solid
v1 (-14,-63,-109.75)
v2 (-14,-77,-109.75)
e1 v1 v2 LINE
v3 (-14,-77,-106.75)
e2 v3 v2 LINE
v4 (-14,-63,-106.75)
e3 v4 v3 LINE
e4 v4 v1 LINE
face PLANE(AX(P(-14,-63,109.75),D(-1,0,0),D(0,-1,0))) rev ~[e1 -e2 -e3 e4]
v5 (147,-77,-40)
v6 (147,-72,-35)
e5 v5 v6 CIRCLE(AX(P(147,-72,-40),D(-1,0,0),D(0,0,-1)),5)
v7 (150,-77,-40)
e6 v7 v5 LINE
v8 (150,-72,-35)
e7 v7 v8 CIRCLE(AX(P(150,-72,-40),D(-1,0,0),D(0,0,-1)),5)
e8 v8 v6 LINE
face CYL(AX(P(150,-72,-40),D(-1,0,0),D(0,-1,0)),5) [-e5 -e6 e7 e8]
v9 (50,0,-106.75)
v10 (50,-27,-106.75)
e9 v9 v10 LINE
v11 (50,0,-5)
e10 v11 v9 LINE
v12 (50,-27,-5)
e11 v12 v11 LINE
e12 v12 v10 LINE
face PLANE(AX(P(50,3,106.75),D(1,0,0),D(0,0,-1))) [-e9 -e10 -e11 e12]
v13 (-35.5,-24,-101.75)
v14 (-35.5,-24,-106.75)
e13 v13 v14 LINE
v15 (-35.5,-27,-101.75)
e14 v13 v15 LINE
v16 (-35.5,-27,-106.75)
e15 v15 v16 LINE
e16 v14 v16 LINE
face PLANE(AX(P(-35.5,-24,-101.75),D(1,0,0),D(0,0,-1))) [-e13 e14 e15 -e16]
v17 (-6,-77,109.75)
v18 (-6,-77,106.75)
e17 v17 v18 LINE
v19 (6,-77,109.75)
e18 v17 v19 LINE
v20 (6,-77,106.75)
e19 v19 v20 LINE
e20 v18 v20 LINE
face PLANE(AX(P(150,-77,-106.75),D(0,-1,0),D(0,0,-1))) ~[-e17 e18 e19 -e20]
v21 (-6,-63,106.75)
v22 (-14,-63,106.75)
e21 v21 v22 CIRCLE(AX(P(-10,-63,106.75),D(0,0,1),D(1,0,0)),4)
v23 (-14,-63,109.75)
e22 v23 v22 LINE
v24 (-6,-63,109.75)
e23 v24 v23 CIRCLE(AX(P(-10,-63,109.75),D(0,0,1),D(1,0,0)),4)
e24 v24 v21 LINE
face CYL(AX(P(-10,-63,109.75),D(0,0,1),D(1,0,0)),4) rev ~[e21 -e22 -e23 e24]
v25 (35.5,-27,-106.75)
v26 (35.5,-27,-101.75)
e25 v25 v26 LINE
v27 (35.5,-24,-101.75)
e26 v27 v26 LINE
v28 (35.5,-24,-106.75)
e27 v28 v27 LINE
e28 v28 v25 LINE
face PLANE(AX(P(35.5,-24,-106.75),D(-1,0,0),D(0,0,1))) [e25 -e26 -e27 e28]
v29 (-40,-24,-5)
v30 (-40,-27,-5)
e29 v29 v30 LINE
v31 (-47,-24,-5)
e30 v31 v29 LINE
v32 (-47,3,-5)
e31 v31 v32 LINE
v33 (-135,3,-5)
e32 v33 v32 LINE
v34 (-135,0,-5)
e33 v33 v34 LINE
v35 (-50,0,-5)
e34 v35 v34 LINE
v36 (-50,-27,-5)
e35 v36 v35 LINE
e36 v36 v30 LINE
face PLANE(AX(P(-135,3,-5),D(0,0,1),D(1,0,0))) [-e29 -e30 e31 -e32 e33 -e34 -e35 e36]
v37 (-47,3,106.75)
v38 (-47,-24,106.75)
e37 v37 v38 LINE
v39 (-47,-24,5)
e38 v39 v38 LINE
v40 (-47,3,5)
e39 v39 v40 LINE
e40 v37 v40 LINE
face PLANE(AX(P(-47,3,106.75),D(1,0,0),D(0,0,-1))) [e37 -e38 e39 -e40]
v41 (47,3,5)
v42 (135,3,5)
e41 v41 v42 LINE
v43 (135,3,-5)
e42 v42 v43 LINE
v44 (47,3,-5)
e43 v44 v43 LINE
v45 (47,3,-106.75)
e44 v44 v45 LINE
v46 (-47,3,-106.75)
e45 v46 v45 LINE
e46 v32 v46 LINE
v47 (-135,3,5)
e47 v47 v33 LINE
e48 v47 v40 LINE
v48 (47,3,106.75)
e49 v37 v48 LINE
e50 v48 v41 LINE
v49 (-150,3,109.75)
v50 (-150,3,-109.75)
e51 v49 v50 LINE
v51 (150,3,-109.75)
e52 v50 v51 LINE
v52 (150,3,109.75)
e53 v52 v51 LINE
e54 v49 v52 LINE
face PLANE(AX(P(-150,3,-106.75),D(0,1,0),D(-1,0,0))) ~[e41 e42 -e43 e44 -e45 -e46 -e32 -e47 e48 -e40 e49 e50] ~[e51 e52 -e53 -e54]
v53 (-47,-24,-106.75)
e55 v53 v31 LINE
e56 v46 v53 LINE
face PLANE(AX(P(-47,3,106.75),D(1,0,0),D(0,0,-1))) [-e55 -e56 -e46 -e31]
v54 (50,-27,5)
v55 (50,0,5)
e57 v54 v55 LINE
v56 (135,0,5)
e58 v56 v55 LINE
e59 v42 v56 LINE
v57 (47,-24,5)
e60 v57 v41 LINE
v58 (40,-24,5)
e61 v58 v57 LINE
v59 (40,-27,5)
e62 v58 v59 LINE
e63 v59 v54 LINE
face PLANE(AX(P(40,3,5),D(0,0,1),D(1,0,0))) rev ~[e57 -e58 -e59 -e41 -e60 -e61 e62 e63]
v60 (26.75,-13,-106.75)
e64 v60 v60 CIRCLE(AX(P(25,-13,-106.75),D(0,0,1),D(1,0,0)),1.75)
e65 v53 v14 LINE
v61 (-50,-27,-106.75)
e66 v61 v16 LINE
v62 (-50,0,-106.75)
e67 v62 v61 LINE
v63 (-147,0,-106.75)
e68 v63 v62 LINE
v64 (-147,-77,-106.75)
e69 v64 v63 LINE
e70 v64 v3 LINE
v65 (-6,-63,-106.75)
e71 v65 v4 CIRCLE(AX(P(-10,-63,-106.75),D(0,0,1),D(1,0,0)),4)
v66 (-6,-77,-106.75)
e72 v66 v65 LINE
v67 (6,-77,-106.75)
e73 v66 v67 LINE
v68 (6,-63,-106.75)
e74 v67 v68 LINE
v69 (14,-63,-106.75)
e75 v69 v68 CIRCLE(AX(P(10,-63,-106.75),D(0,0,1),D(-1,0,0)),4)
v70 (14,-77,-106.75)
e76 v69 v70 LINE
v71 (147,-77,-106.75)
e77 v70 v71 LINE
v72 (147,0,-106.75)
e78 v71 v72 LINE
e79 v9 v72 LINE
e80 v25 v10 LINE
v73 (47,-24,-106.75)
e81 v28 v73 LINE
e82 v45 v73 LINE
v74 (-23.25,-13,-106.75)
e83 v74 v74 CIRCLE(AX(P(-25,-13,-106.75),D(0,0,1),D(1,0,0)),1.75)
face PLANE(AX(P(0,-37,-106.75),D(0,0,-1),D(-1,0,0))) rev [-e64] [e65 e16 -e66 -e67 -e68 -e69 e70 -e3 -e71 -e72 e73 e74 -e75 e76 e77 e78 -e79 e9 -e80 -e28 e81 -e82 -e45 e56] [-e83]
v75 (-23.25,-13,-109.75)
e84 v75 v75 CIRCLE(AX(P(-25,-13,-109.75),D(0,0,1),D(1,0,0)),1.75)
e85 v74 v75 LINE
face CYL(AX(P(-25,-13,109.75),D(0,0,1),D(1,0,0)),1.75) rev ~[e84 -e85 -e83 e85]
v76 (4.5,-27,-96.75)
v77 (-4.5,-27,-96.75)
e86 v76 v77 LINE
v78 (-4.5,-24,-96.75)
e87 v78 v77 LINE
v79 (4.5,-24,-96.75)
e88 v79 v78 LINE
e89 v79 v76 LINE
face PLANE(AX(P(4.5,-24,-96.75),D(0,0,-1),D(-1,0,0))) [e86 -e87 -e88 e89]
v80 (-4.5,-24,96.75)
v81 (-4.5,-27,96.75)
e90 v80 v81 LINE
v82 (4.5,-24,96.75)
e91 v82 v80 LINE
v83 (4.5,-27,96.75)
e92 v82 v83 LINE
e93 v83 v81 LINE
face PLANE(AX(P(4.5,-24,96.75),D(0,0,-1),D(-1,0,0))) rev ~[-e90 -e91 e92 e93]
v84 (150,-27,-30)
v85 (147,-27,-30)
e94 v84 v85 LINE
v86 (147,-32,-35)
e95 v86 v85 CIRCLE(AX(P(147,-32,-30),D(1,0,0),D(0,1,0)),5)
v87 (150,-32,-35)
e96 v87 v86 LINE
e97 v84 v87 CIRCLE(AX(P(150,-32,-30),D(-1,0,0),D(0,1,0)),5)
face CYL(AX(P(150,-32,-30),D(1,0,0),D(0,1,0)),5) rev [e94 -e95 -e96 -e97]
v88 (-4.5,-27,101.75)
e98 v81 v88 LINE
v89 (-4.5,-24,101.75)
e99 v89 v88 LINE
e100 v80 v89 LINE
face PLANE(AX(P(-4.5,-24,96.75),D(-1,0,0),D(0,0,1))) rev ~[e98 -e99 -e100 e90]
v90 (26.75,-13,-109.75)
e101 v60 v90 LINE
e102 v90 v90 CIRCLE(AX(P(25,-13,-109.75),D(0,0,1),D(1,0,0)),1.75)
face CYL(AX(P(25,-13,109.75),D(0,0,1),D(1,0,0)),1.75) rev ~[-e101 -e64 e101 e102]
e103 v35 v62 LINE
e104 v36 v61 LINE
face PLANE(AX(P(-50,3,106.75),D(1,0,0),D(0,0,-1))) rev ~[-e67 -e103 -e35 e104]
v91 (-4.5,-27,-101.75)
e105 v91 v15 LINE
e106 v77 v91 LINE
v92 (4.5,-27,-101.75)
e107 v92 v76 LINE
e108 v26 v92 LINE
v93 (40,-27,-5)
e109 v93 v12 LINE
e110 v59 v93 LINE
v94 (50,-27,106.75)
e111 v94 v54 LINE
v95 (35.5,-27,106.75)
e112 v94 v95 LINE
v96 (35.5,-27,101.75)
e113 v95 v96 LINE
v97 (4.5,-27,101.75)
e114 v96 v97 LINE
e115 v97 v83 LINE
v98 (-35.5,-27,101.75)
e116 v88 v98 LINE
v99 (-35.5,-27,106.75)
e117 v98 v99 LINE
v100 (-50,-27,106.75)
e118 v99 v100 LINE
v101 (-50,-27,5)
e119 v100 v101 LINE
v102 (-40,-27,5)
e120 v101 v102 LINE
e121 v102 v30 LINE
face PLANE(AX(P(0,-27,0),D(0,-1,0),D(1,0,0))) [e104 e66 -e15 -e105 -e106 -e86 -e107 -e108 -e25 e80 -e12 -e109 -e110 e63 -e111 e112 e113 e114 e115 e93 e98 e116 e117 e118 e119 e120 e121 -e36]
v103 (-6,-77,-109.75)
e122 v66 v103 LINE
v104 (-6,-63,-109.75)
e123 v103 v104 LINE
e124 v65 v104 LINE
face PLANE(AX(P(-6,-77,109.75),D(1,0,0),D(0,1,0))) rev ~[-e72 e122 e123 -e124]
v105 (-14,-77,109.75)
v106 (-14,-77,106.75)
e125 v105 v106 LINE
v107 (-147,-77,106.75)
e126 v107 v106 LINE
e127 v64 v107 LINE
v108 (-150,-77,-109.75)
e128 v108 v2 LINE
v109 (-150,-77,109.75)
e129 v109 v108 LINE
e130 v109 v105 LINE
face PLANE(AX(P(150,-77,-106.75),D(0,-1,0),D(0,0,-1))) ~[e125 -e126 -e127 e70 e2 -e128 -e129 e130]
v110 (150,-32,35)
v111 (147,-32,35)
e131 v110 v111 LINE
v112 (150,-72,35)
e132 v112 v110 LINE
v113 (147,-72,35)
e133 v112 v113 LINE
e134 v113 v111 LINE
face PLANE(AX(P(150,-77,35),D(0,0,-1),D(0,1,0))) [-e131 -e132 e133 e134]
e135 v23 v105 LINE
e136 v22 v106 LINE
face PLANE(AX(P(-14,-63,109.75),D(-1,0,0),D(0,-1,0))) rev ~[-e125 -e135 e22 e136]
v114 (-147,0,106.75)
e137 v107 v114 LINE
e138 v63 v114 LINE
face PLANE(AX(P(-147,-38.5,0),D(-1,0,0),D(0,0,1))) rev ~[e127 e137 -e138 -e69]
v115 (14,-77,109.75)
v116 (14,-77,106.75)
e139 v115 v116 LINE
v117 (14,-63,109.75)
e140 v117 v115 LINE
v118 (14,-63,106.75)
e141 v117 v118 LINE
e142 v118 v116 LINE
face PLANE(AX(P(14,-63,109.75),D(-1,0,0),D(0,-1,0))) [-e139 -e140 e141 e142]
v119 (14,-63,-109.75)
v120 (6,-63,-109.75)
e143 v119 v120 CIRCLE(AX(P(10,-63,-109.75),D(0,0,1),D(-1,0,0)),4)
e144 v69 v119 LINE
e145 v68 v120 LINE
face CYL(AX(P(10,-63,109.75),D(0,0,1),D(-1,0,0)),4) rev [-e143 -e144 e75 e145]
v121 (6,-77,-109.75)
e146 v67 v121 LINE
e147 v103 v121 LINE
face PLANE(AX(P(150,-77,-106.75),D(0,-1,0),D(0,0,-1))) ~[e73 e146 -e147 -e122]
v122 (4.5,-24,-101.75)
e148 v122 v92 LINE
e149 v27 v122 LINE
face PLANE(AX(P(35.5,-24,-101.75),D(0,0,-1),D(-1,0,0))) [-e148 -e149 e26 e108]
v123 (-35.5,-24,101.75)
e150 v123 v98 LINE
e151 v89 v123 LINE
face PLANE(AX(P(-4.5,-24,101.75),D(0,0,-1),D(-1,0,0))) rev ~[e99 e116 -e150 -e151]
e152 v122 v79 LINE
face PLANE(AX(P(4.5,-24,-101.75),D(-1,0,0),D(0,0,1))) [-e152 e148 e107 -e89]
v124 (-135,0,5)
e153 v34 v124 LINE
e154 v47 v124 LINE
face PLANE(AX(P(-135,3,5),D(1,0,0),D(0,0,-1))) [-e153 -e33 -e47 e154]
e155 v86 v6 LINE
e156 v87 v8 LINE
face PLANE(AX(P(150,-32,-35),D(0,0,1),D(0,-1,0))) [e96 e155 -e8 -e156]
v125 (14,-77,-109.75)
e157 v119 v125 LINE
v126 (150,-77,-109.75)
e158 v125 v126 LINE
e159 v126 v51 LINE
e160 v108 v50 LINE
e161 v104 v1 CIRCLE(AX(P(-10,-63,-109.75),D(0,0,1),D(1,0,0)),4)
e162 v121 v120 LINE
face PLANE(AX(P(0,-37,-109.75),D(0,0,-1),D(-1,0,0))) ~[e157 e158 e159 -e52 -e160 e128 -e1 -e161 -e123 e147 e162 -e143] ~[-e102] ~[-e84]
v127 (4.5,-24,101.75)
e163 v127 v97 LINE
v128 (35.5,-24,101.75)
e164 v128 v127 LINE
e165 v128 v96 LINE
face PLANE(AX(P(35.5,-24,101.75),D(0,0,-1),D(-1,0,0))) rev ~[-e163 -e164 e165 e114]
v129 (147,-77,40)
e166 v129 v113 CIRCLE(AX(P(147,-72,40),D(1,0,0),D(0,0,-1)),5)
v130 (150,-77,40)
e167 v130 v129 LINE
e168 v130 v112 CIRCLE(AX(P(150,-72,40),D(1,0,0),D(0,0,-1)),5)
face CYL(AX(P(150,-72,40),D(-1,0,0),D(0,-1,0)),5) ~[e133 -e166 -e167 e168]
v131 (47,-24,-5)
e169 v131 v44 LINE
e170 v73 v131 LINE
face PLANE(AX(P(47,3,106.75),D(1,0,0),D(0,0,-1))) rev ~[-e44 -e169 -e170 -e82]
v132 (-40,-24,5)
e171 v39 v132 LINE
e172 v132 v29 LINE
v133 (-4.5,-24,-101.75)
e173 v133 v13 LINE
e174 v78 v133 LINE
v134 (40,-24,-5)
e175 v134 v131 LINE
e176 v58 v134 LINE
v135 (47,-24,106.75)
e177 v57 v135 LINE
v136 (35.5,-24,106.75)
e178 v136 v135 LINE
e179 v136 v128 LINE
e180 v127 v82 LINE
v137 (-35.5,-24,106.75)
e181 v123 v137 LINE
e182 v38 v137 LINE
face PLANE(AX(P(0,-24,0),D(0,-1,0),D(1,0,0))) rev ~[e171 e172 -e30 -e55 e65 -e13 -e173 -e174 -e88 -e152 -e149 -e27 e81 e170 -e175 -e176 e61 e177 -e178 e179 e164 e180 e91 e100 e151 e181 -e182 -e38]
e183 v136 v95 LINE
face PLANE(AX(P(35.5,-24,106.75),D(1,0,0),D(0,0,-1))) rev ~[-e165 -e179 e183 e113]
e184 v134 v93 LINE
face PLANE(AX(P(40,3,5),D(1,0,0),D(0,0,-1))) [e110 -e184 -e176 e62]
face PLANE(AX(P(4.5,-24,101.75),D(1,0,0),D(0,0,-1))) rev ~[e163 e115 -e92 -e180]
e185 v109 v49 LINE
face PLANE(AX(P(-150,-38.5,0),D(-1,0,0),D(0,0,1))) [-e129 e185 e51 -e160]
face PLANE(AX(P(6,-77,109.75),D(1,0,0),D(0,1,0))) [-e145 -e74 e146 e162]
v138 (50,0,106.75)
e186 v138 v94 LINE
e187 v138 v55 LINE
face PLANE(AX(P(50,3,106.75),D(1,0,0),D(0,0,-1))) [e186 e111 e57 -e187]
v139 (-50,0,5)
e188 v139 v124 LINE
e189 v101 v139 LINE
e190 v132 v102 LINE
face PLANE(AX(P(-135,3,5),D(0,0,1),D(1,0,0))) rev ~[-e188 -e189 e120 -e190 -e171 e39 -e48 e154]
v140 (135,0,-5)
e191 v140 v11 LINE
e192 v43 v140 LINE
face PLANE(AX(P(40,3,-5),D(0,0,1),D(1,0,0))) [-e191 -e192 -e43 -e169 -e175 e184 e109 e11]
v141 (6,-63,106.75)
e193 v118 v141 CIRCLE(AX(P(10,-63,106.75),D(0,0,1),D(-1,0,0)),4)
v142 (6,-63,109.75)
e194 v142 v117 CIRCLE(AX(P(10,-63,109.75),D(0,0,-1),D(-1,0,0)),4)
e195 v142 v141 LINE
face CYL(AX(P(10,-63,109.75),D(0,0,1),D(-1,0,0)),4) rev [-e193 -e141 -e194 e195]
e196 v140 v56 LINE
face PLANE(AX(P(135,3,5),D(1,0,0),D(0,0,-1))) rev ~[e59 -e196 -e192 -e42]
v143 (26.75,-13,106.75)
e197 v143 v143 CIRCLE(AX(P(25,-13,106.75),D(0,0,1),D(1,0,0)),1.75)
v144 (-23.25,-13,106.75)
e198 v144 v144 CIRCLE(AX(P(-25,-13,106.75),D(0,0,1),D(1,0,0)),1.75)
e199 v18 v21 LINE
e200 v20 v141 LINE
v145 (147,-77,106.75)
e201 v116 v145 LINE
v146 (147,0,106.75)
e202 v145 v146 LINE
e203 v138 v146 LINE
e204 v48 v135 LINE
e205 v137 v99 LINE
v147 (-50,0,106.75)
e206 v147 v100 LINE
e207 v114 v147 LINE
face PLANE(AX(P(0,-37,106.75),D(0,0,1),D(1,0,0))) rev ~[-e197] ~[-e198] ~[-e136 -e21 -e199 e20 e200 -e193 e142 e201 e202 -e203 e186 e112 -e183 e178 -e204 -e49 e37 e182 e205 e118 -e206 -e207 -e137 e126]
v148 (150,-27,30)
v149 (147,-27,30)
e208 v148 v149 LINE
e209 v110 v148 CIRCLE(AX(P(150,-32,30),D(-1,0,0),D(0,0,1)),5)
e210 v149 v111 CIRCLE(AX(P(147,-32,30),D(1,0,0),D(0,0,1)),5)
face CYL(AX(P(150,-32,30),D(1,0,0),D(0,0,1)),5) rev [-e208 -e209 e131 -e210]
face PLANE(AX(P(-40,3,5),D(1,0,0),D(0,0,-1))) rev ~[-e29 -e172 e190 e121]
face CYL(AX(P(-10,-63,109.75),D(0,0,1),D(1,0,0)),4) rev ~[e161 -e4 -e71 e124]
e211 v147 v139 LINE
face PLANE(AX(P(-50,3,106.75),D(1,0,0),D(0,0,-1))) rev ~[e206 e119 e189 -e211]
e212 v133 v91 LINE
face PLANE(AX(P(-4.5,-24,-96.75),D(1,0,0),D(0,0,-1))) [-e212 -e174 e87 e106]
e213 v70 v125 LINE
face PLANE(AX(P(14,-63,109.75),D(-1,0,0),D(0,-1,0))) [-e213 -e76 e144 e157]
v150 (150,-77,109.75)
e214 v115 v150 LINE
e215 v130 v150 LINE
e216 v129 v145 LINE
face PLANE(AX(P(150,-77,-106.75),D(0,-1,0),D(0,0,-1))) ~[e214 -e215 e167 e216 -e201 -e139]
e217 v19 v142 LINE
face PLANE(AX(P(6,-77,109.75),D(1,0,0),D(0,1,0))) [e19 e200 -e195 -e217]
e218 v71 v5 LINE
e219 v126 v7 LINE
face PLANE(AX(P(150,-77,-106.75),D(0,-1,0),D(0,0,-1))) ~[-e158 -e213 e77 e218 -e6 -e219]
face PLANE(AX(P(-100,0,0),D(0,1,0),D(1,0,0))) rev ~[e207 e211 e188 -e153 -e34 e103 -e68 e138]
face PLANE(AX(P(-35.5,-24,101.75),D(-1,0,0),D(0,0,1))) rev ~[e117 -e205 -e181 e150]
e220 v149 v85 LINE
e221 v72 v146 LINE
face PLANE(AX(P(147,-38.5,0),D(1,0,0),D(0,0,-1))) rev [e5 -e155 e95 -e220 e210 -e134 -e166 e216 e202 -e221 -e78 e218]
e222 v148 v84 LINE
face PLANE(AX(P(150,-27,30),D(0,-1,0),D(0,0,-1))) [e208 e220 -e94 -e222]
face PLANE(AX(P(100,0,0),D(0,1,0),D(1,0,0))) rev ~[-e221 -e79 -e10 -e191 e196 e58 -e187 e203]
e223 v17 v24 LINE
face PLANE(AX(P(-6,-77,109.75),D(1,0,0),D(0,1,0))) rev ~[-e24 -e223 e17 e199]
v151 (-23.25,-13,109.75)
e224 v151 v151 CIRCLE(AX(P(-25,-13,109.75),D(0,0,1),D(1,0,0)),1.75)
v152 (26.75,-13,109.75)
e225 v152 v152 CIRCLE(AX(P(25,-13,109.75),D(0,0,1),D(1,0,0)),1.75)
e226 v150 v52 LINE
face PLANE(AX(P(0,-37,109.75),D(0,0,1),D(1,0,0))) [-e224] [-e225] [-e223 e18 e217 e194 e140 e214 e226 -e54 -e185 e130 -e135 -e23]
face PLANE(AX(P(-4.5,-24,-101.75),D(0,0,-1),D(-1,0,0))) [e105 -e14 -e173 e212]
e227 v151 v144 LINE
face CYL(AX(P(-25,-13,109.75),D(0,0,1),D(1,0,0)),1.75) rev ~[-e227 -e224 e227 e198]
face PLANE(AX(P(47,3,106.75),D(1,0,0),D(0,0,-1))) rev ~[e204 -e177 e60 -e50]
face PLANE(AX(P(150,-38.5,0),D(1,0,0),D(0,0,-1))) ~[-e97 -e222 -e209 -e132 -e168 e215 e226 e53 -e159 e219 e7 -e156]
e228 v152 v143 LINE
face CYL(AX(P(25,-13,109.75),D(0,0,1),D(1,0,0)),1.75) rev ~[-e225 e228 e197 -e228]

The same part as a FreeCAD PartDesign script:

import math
import FreeCAD as App
import Part
import Sketcher

V = App.Vector


def edges_at(feature, points):
    """Names of the edges that pass closest to the given points."""
    edges = feature.Shape.Edges
    near = lambda p: min(range(len(edges)), key=lambda i: edges[i].distToShape(Part.Vertex(*p))[0])
    return sorted({f"Edge{near(p) + 1}" for p in points})

doc = App.newDocument("Part")
body = doc.addObject("PartDesign::Body", "Body")

# Sketch on XZ plane
sketch1 = body.newObject("Sketcher::SketchObject", "Sketch")
sketch1.AttachmentSupport = (doc.getObject("XZ_Plane"), [""])
sketch1.MapMode = "FlatFace"
sketch1.addGeometry(Part.LineSegment(V(-150, -107, 0), V(-150, 107, 0)), False)
sketch1.addGeometry(Part.LineSegment(V(-150, 107, 0), V(-50, 107, 0)), False)
sketch1.addGeometry(Part.LineSegment(V(-50, 107, 0), V(-50, -107, 0)), False)
sketch1.addGeometry(Part.LineSegment(V(-50, -107, 0), V(-150, -107, 0)), False)
sketch1.addConstraint(Sketcher.Constraint("Coincident", 0, 2, 1, 1))
sketch1.addConstraint(Sketcher.Constraint("Coincident", 1, 2, 2, 1))
sketch1.addConstraint(Sketcher.Constraint("Coincident", 2, 2, 3, 1))
sketch1.addConstraint(Sketcher.Constraint("Coincident", 3, 2, 0, 1))
sketch1.addConstraint(Sketcher.Constraint("Vertical", 0))
sketch1.addConstraint(Sketcher.Constraint("Horizontal", 1))
sketch1.addConstraint(Sketcher.Constraint("Vertical", 2))
sketch1.addConstraint(Sketcher.Constraint("Horizontal", 3))
sketch1.addConstraint(Sketcher.Constraint("DistanceX", 1, 1, 1, 2, 100.0))
sketch1.addConstraint(Sketcher.Constraint("DistanceY", 0, 1, 0, 2, 213.5))
sketch1.addConstraint(Sketcher.Constraint("DistanceX", 0, 2, -1, 1, 150.0))
sketch1.addConstraint(Sketcher.Constraint("DistanceY", -1, 1, 0, 2, 106.75))
pad1 = body.newObject("PartDesign::Pad", "Pad")
pad1.Profile = sketch1
pad1.Length = 3
pad1.Reversed = True
body2 = doc.addObject("PartDesign::Body", "Body001")

# Sketch on XZ plane
sketch2 = body2.newObject("Sketcher::SketchObject", "Sketch001")
sketch2.AttachmentSupport = (doc.getObject("XZ_Plane001"), [""])
sketch2.MapMode = "FlatFace"
sketch2.addGeometry(Part.LineSegment(V(50, -107, 0), V(50, 107, 0)), False)
sketch2.addGeometry(Part.LineSegment(V(50, 107, 0), V(150, 107, 0)), False)
sketch2.addGeometry(Part.LineSegment(V(150, 107, 0), V(150, -107, 0)), False)
sketch2.addGeometry(Part.LineSegment(V(150, -107, 0), V(50, -107, 0)), False)
sketch2.addConstraint(Sketcher.Constraint("Coincident", 0, 2, 1, 1))
sketch2.addConstraint(Sketcher.Constraint("Coincident", 1, 2, 2, 1))
sketch2.addConstraint(Sketcher.Constraint("Coincident", 2, 2, 3, 1))
sketch2.addConstraint(Sketcher.Constraint("Coincident", 3, 2, 0, 1))
sketch2.addConstraint(Sketcher.Constraint("Vertical", 0))
sketch2.addConstraint(Sketcher.Constraint("Horizontal", 1))
sketch2.addConstraint(Sketcher.Constraint("Vertical", 2))
sketch2.addConstraint(Sketcher.Constraint("Horizontal", 3))
sketch2.addConstraint(Sketcher.Constraint("DistanceX", 1, 1, 1, 2, 100.0))
sketch2.addConstraint(Sketcher.Constraint("DistanceY", 0, 1, 0, 2, 213.5))
sketch2.addConstraint(Sketcher.Constraint("DistanceX", -1, 1, 0, 2, 50.0))
sketch2.addConstraint(Sketcher.Constraint("DistanceY", -1, 1, 0, 2, 106.75))
pad2 = body2.newObject("PartDesign::Pad", "Pad001")
pad2.Profile = sketch2
pad2.Length = 3
pad2.Reversed = True
body.AllowCompound = True
doc.recompute()

boolean = body.newObject("PartDesign::Boolean", "Boolean")
boolean.Type = "Fuse"
boolean.addObjects([body2])

# Sketch on XY plane
sketch3 = body.newObject("Sketcher::SketchObject", "Sketch002")
sketch3.AttachmentSupport = (doc.getObject("XY_Plane"), [""])
sketch3.MapMode = "FlatFace"
sketch3.AttachmentOffset = App.Placement(V(0, 0, 106.75), App.Rotation())
sketch3.addGeometry(Part.LineSegment(V(-150, 3, 0), V(-150, -77, 0)), False)
sketch3.addGeometry(Part.LineSegment(V(-150, -77, 0), V(150, -77, 0)), False)
sketch3.addGeometry(Part.LineSegment(V(150, -77, 0), V(150, 3, 0)), False)
sketch3.addGeometry(Part.LineSegment(V(150, 3, 0), V(-150, 3, 0)), False)
sketch3.addConstraint(Sketcher.Constraint("Coincident", 0, 2, 1, 1))
sketch3.addConstraint(Sketcher.Constraint("Coincident", 1, 2, 2, 1))
sketch3.addConstraint(Sketcher.Constraint("Coincident", 2, 2, 3, 1))
sketch3.addConstraint(Sketcher.Constraint("Coincident", 3, 2, 0, 1))
sketch3.addConstraint(Sketcher.Constraint("Vertical", 0))
sketch3.addConstraint(Sketcher.Constraint("Horizontal", 1))
sketch3.addConstraint(Sketcher.Constraint("Vertical", 2))
sketch3.addConstraint(Sketcher.Constraint("Horizontal", 3))
sketch3.addConstraint(Sketcher.Constraint("DistanceX", 1, 1, 1, 2, 300.0))
sketch3.addConstraint(Sketcher.Constraint("DistanceY", 0, 2, 0, 1, 80.0))
sketch3.addConstraint(Sketcher.Constraint("DistanceX", 0, 2, -1, 1, 150.0))
sketch3.addConstraint(Sketcher.Constraint("DistanceY", 0, 2, -1, 1, 77.0))
pad3 = body.newObject("PartDesign::Pad", "Pad002")
pad3.Profile = sketch3
pad3.Length = 3
doc.recompute()

mirrored = body.newObject("PartDesign::Mirrored", "Mirrored")
mirrored.Originals = [pad3]
mirrored.MirrorPlane = (doc.getObject("XY_Plane"), [""])
body.Tip = mirrored

# Sketch on XZ plane
sketch4 = body.newObject("Sketcher::SketchObject", "Sketch003")
sketch4.AttachmentSupport = (doc.getObject("XZ_Plane"), [""])
sketch4.MapMode = "FlatFace"
sketch4.AttachmentOffset = App.Placement(V(0, 0, -3), App.Rotation())
sketch4.addGeometry(Part.LineSegment(V(-50, -106.8, 0), V(-50, 106.8, 0)), False)
sketch4.addGeometry(Part.LineSegment(V(-50, 106.8, 0), V(-47, 106.8, 0)), False)
sketch4.addGeometry(Part.LineSegment(V(-47, 106.8, 0), V(-47, -106.8, 0)), False)
sketch4.addGeometry(Part.LineSegment(V(-47, -106.8, 0), V(-50, -106.8, 0)), False)
sketch4.addGeometry(Part.LineSegment(V(47, -106.8, 0), V(47, 106.8, 0)), False)
sketch4.addGeometry(Part.LineSegment(V(47, 106.8, 0), V(50, 106.8, 0)), False)
sketch4.addGeometry(Part.LineSegment(V(50, 106.8, 0), V(50, -106.8, 0)), False)
sketch4.addGeometry(Part.LineSegment(V(50, -106.8, 0), V(47, -106.8, 0)), False)
sketch4.addConstraint(Sketcher.Constraint("Coincident", 0, 2, 1, 1))
sketch4.addConstraint(Sketcher.Constraint("Coincident", 1, 2, 2, 1))
sketch4.addConstraint(Sketcher.Constraint("Coincident", 2, 2, 3, 1))
sketch4.addConstraint(Sketcher.Constraint("Coincident", 3, 2, 0, 1))
sketch4.addConstraint(Sketcher.Constraint("Coincident", 4, 2, 5, 1))
sketch4.addConstraint(Sketcher.Constraint("Coincident", 5, 2, 6, 1))
sketch4.addConstraint(Sketcher.Constraint("Coincident", 6, 2, 7, 1))
sketch4.addConstraint(Sketcher.Constraint("Coincident", 7, 2, 4, 1))
sketch4.addConstraint(Sketcher.Constraint("Vertical", 0))
sketch4.addConstraint(Sketcher.Constraint("Horizontal", 1))
sketch4.addConstraint(Sketcher.Constraint("Vertical", 2))
sketch4.addConstraint(Sketcher.Constraint("Horizontal", 3))
sketch4.addConstraint(Sketcher.Constraint("Vertical", 4))
sketch4.addConstraint(Sketcher.Constraint("Horizontal", 5))
sketch4.addConstraint(Sketcher.Constraint("Vertical", 6))
sketch4.addConstraint(Sketcher.Constraint("Horizontal", 7))
sketch4.addConstraint(Sketcher.Constraint("Symmetric", 2, 2, 4, 2, -1, 1))
sketch4.addConstraint(Sketcher.Constraint("Symmetric", 0, 2, 6, 2, -1, 1))
sketch4.addConstraint(Sketcher.Constraint("Horizontal", 1, 2, 4, 2))
sketch4.addConstraint(Sketcher.Constraint("DistanceX", 1, 1, 1, 2, 3.0))
sketch4.addConstraint(Sketcher.Constraint("DistanceY", 0, 1, 0, 2, 213.5))
sketch4.addConstraint(Sketcher.Constraint("DistanceX", 0, 2, -1, 1, 50.0))
pad4 = body.newObject("PartDesign::Pad", "Pad003")
pad4.Profile = sketch4
pad4.Length = 30

# Sketch on XZ plane
sketch5 = body.newObject("Sketcher::SketchObject", "Sketch004")
sketch5.AttachmentSupport = (doc.getObject("XZ_Plane"), [""])
sketch5.MapMode = "FlatFace"
sketch5.AttachmentOffset = App.Placement(V(0, 0, 27), App.Rotation())
sketch5.addGeometry(Part.LineSegment(V(-47, 107, 0), V(-47, -107, 0)), False)
sketch5.addGeometry(Part.LineSegment(V(-47, -107, 0), V(47, -107, 0)), False)
sketch5.addGeometry(Part.LineSegment(V(47, -107, 0), V(47, 107, 0)), False)
sketch5.addGeometry(Part.LineSegment(V(47, 107, 0), V(-47, 107, 0)), False)
sketch5.addConstraint(Sketcher.Constraint("Coincident", 0, 2, 1, 1))
sketch5.addConstraint(Sketcher.Constraint("Coincident", 1, 2, 2, 1))
sketch5.addConstraint(Sketcher.Constraint("Coincident", 2, 2, 3, 1))
sketch5.addConstraint(Sketcher.Constraint("Coincident", 3, 2, 0, 1))
sketch5.addConstraint(Sketcher.Constraint("Vertical", 0))
sketch5.addConstraint(Sketcher.Constraint("Horizontal", 1))
sketch5.addConstraint(Sketcher.Constraint("Vertical", 2))
sketch5.addConstraint(Sketcher.Constraint("Horizontal", 3))
sketch5.addConstraint(Sketcher.Constraint("Symmetric", 0, 2, 2, 2, -1, 1))
sketch5.addConstraint(Sketcher.Constraint("DistanceX", 1, 1, 1, 2, 94.0))
sketch5.addConstraint(Sketcher.Constraint("DistanceY", 0, 2, 0, 1, 213.5))
pad5 = body.newObject("PartDesign::Pad", "Pad004")
pad5.Profile = sketch5
pad5.Length = 3
pad5.Reversed = True

# Sketch on XZ plane
sketch6 = body.newObject("Sketcher::SketchObject", "Sketch005")
sketch6.AttachmentSupport = (doc.getObject("XZ_Plane"), [""])
sketch6.MapMode = "FlatFace"
sketch6.AttachmentOffset = App.Placement(V(0, 0, 24), App.Rotation())
sketch6.addGeometry(Part.LineSegment(V(36, -107, 0), V(-36, -107, 0)), False)
sketch6.addGeometry(Part.LineSegment(V(-36, -107, 0), V(-36, -102, 0)), False)
sketch6.addGeometry(Part.LineSegment(V(-36, -102, 0), V(-4, -102, 0)), False)
sketch6.addGeometry(Part.LineSegment(V(-4, -102, 0), V(-4, -97, 0)), False)
sketch6.addGeometry(Part.LineSegment(V(-4, -97, 0), V(4, -97, 0)), False)
sketch6.addGeometry(Part.LineSegment(V(4, -97, 0), V(4, -102, 0)), False)
sketch6.addGeometry(Part.LineSegment(V(4, -102, 0), V(36, -102, 0)), False)
sketch6.addGeometry(Part.LineSegment(V(36, -102, 0), V(36, -107, 0)), False)
sketch6.addConstraint(Sketcher.Constraint("Coincident", 0, 2, 1, 1))
sketch6.addConstraint(Sketcher.Constraint("Coincident", 1, 2, 2, 1))
sketch6.addConstraint(Sketcher.Constraint("Coincident", 2, 2, 3, 1))
sketch6.addConstraint(Sketcher.Constraint("Coincident", 3, 2, 4, 1))
sketch6.addConstraint(Sketcher.Constraint("Coincident", 4, 2, 5, 1))
sketch6.addConstraint(Sketcher.Constraint("Coincident", 5, 2, 6, 1))
sketch6.addConstraint(Sketcher.Constraint("Coincident", 6, 2, 7, 1))
sketch6.addConstraint(Sketcher.Constraint("Coincident", 7, 2, 0, 1))
sketch6.addConstraint(Sketcher.Constraint("Horizontal", 0))
sketch6.addConstraint(Sketcher.Constraint("Vertical", 1))
sketch6.addConstraint(Sketcher.Constraint("Horizontal", 2))
sketch6.addConstraint(Sketcher.Constraint("Vertical", 3))
sketch6.addConstraint(Sketcher.Constraint("Horizontal", 4))
sketch6.addConstraint(Sketcher.Constraint("Vertical", 5))
sketch6.addConstraint(Sketcher.Constraint("Horizontal", 6))
sketch6.addConstraint(Sketcher.Constraint("Vertical", 7))
sketch6.addConstraint(Sketcher.Constraint("Symmetric", 2, 2, 5, 2, -2))
sketch6.addConstraint(Sketcher.Constraint("Equal", 2, 6))
sketch6.addConstraint(Sketcher.Constraint("Equal", 1, 3))
sketch6.addConstraint(Sketcher.Constraint("DistanceX", 0, 2, 0, 1, 71.0))
sketch6.addConstraint(Sketcher.Constraint("DistanceX", 2, 1, 2, 2, 31.0))
sketch6.addConstraint(Sketcher.Constraint("DistanceY", 1, 1, 1, 2, 5.0))
sketch6.addConstraint(Sketcher.Constraint("DistanceY", 0, 2, -1, 1, 106.75))
pocket1 = body.newObject("PartDesign::Pocket", "Pocket")
pocket1.Profile = sketch6
pocket1.Type = "UpToFirst"
pocket1.Reversed = True

# Sketch on XZ plane
sketch7 = body.newObject("Sketcher::SketchObject", "Sketch006")
sketch7.AttachmentSupport = (doc.getObject("XZ_Plane"), [""])
sketch7.MapMode = "FlatFace"
sketch7.AttachmentOffset = App.Placement(V(0, 0, 24), App.Rotation())
sketch7.addGeometry(Part.LineSegment(V(-36, 107, 0), V(36, 107, 0)), False)
sketch7.addGeometry(Part.LineSegment(V(36, 107, 0), V(36, 102, 0)), False)
sketch7.addGeometry(Part.LineSegment(V(36, 102, 0), V(4, 102, 0)), False)
sketch7.addGeometry(Part.LineSegment(V(4, 102, 0), V(4, 97, 0)), False)
sketch7.addGeometry(Part.LineSegment(V(4, 97, 0), V(-4, 97, 0)), False)
sketch7.addGeometry(Part.LineSegment(V(-4, 97, 0), V(-4, 102, 0)), False)
sketch7.addGeometry(Part.LineSegment(V(-4, 102, 0), V(-36, 102, 0)), False)
sketch7.addGeometry(Part.LineSegment(V(-36, 102, 0), V(-36, 107, 0)), False)
sketch7.addConstraint(Sketcher.Constraint("Coincident", 0, 2, 1, 1))
sketch7.addConstraint(Sketcher.Constraint("Coincident", 1, 2, 2, 1))
sketch7.addConstraint(Sketcher.Constraint("Coincident", 2, 2, 3, 1))
sketch7.addConstraint(Sketcher.Constraint("Coincident", 3, 2, 4, 1))
sketch7.addConstraint(Sketcher.Constraint("Coincident", 4, 2, 5, 1))
sketch7.addConstraint(Sketcher.Constraint("Coincident", 5, 2, 6, 1))
sketch7.addConstraint(Sketcher.Constraint("Coincident", 6, 2, 7, 1))
sketch7.addConstraint(Sketcher.Constraint("Coincident", 7, 2, 0, 1))
sketch7.addConstraint(Sketcher.Constraint("Horizontal", 0))
sketch7.addConstraint(Sketcher.Constraint("Vertical", 1))
sketch7.addConstraint(Sketcher.Constraint("Horizontal", 2))
sketch7.addConstraint(Sketcher.Constraint("Vertical", 3))
sketch7.addConstraint(Sketcher.Constraint("Horizontal", 4))
sketch7.addConstraint(Sketcher.Constraint("Vertical", 5))
sketch7.addConstraint(Sketcher.Constraint("Horizontal", 6))
sketch7.addConstraint(Sketcher.Constraint("Vertical", 7))
sketch7.addConstraint(Sketcher.Constraint("Symmetric", 2, 2, 5, 2, -2))
sketch7.addConstraint(Sketcher.Constraint("Equal", 2, 6))
sketch7.addConstraint(Sketcher.Constraint("Equal", 1, 3))
sketch7.addConstraint(Sketcher.Constraint("DistanceX", 0, 1, 0, 2, 71.0))
sketch7.addConstraint(Sketcher.Constraint("DistanceX", 2, 2, 2, 1, 31.0))
sketch7.addConstraint(Sketcher.Constraint("DistanceY", 1, 2, 1, 1, 5.0))
sketch7.addConstraint(Sketcher.Constraint("DistanceY", -1, 1, 0, 2, 106.75))
pocket2 = body.newObject("PartDesign::Pocket", "Pocket001")
pocket2.Profile = sketch7
pocket2.Type = "UpToFirst"
pocket2.Reversed = True

# Sketch on XZ plane
sketch8 = body.newObject("Sketcher::SketchObject", "Sketch007")
sketch8.AttachmentSupport = (doc.getObject("XZ_Plane"), [""])
sketch8.MapMode = "FlatFace"
sketch8.AttachmentOffset = App.Placement(V(0, 0, -3), App.Rotation())
sketch8.addGeometry(Part.LineSegment(V(-135, -5, 0), V(-135, 5, 0)), False)
sketch8.addGeometry(Part.LineSegment(V(-135, 5, 0), V(-40, 5, 0)), False)
sketch8.addGeometry(Part.LineSegment(V(-40, 5, 0), V(-40, -5, 0)), False)
sketch8.addGeometry(Part.LineSegment(V(-40, -5, 0), V(-135, -5, 0)), False)
sketch8.addConstraint(Sketcher.Constraint("Coincident", 0, 2, 1, 1))
sketch8.addConstraint(Sketcher.Constraint("Coincident", 1, 2, 2, 1))
sketch8.addConstraint(Sketcher.Constraint("Coincident", 2, 2, 3, 1))
sketch8.addConstraint(Sketcher.Constraint("Coincident", 3, 2, 0, 1))
sketch8.addConstraint(Sketcher.Constraint("Vertical", 0))
sketch8.addConstraint(Sketcher.Constraint("Horizontal", 1))
sketch8.addConstraint(Sketcher.Constraint("Vertical", 2))
sketch8.addConstraint(Sketcher.Constraint("Horizontal", 3))
sketch8.addConstraint(Sketcher.Constraint("DistanceX", 1, 1, 1, 2, 95.0))
sketch8.addConstraint(Sketcher.Constraint("DistanceY", 0, 1, 0, 2, 10.0))
sketch8.addConstraint(Sketcher.Constraint("DistanceX", 0, 2, -1, 1, 135.0))
sketch8.addConstraint(Sketcher.Constraint("DistanceY", -1, 1, 0, 2, 5.0))
pocket3 = body.newObject("PartDesign::Pocket", "Pocket002")
pocket3.Profile = sketch8
pocket3.Length = 30
pocket3.Reversed = True

# Sketch on XZ plane
sketch9 = body.newObject("Sketcher::SketchObject", "Sketch008")
sketch9.AttachmentSupport = (doc.getObject("XZ_Plane"), [""])
sketch9.MapMode = "FlatFace"
sketch9.AttachmentOffset = App.Placement(V(0, 0, -3), App.Rotation())
sketch9.addGeometry(Part.LineSegment(V(40, -5, 0), V(40, 5, 0)), False)
sketch9.addGeometry(Part.LineSegment(V(40, 5, 0), V(135, 5, 0)), False)
sketch9.addGeometry(Part.LineSegment(V(135, 5, 0), V(135, -5, 0)), False)
sketch9.addGeometry(Part.LineSegment(V(135, -5, 0), V(40, -5, 0)), False)
sketch9.addConstraint(Sketcher.Constraint("Coincident", 0, 2, 1, 1))
sketch9.addConstraint(Sketcher.Constraint("Coincident", 1, 2, 2, 1))
sketch9.addConstraint(Sketcher.Constraint("Coincident", 2, 2, 3, 1))
sketch9.addConstraint(Sketcher.Constraint("Coincident", 3, 2, 0, 1))
sketch9.addConstraint(Sketcher.Constraint("Vertical", 0))
sketch9.addConstraint(Sketcher.Constraint("Horizontal", 1))
sketch9.addConstraint(Sketcher.Constraint("Vertical", 2))
sketch9.addConstraint(Sketcher.Constraint("Horizontal", 3))
sketch9.addConstraint(Sketcher.Constraint("DistanceX", 1, 1, 1, 2, 95.0))
sketch9.addConstraint(Sketcher.Constraint("DistanceY", 0, 1, 0, 2, 10.0))
sketch9.addConstraint(Sketcher.Constraint("DistanceX", -1, 1, 0, 2, 40.0))
sketch9.addConstraint(Sketcher.Constraint("DistanceY", -1, 1, 0, 2, 5.0))
pocket4 = body.newObject("PartDesign::Pocket", "Pocket003")
pocket4.Profile = sketch9
pocket4.Length = 30
pocket4.Reversed = True

# Sketch on YZ plane
sketch10 = body.newObject("Sketcher::SketchObject", "Sketch009")
sketch10.AttachmentSupport = (doc.getObject("YZ_Plane"), [""])
sketch10.MapMode = "FlatFace"
sketch10.AttachmentOffset = App.Placement(V(0, 0, -150), App.Rotation())
sketch10.addGeometry(Part.LineSegment(V(0, -107, 0), V(-77, -107, 0)), False)
sketch10.addGeometry(Part.LineSegment(V(-77, -107, 0), V(-77, 107, 0)), False)
sketch10.addGeometry(Part.LineSegment(V(-77, 107, 0), V(0, 107, 0)), False)
sketch10.addGeometry(Part.LineSegment(V(0, 107, 0), V(0, -107, 0)), False)
sketch10.addConstraint(Sketcher.Constraint("Coincident", 0, 2, 1, 1))
sketch10.addConstraint(Sketcher.Constraint("Coincident", 1, 2, 2, 1))
sketch10.addConstraint(Sketcher.Constraint("Coincident", 2, 2, 3, 1))
sketch10.addConstraint(Sketcher.Constraint("Coincident", 3, 2, 0, 1))
sketch10.addConstraint(Sketcher.Constraint("Horizontal", 0))
sketch10.addConstraint(Sketcher.Constraint("Vertical", 1))
sketch10.addConstraint(Sketcher.Constraint("Horizontal", 2))
sketch10.addConstraint(Sketcher.Constraint("Vertical", 3))
sketch10.addConstraint(Sketcher.Constraint("Symmetric", 2, 2, 3, 2, -1, 1))
sketch10.addConstraint(Sketcher.Constraint("DistanceX", 0, 2, 0, 1, 77.0))
sketch10.addConstraint(Sketcher.Constraint("DistanceY", 1, 1, 1, 2, 213.5))
pad6 = body.newObject("PartDesign::Pad", "Pad005")
pad6.Profile = sketch10
pad6.Length = 3
doc.recompute()

mirrored2 = body.newObject("PartDesign::Mirrored", "Mirrored001")
mirrored2.Originals = [pad6]
mirrored2.MirrorPlane = (doc.getObject("YZ_Plane"), [""])
body.Tip = mirrored2

# Sketch on XY plane
sketch11 = body.newObject("Sketcher::SketchObject", "Sketch010")
sketch11.AttachmentSupport = (doc.getObject("XY_Plane"), [""])
sketch11.MapMode = "FlatFace"
sketch11.AttachmentOffset = App.Placement(V(0, 0, 109.75), App.Rotation())
sketch11.addGeometry(Part.Circle(V(-25, -13, 0), V(0, 0, 1), 1.8), False)
sketch11.addGeometry(Part.Circle(V(25, -13, 0), V(0, 0, 1), 1.8), False)
sketch11.addGeometry(Part.LineSegment(V(-14, -63, 0), V(-14, -77, 0)), False)
sketch11.addGeometry(Part.LineSegment(V(-14, -77, 0), V(-6, -77, 0)), False)
sketch11.addGeometry(Part.LineSegment(V(-6, -77, 0), V(-6, -63, 0)), False)
sketch11.addGeometry(Part.ArcOfCircle(Part.Circle(V(-10, -63, 0), V(0, 0, 1), 4), math.radians(0), math.radians(180)), False)
sketch11.addGeometry(Part.LineSegment(V(14, -77, 0), V(14, -63, 0)), False)
sketch11.addGeometry(Part.ArcOfCircle(Part.Circle(V(10, -63, 0), V(0, 0, 1), 4), math.radians(0), math.radians(180)), False)
sketch11.addGeometry(Part.LineSegment(V(6, -63, 0), V(6, -77, 0)), False)
sketch11.addGeometry(Part.LineSegment(V(6, -77, 0), V(14, -77, 0)), False)
sketch11.addConstraint(Sketcher.Constraint("Coincident", 2, 2, 3, 1))
sketch11.addConstraint(Sketcher.Constraint("Coincident", 3, 2, 4, 1))
sketch11.addConstraint(Sketcher.Constraint("Tangent", 4, 2, 5, 1))
sketch11.addConstraint(Sketcher.Constraint("Tangent", 5, 2, 2, 1))
sketch11.addConstraint(Sketcher.Constraint("Tangent", 6, 2, 7, 1))
sketch11.addConstraint(Sketcher.Constraint("Tangent", 7, 2, 8, 1))
sketch11.addConstraint(Sketcher.Constraint("Coincident", 8, 2, 9, 1))
sketch11.addConstraint(Sketcher.Constraint("Coincident", 9, 2, 6, 1))
sketch11.addConstraint(Sketcher.Constraint("Vertical", 2))
sketch11.addConstraint(Sketcher.Constraint("Horizontal", 3))
sketch11.addConstraint(Sketcher.Constraint("Vertical", 4))
sketch11.addConstraint(Sketcher.Constraint("Vertical", 6))
sketch11.addConstraint(Sketcher.Constraint("Vertical", 8))
sketch11.addConstraint(Sketcher.Constraint("Horizontal", 9))
sketch11.addConstraint(Sketcher.Constraint("Equal", 0, 1))
sketch11.addConstraint(Sketcher.Constraint("Equal", 5, 7))
sketch11.addConstraint(Sketcher.Constraint("Symmetric", 0, 3, 1, 3, -2))
sketch11.addConstraint(Sketcher.Constraint("Symmetric", 5, 3, 7, 3, -2))
sketch11.addConstraint(Sketcher.Constraint("Horizontal", 3, 2, 8, 2))
sketch11.addConstraint(Sketcher.Constraint("Radius", 5, 4.0))
sketch11.addConstraint(Sketcher.Constraint("Diameter", 0, 3.5))
sketch11.addConstraint(Sketcher.Constraint("DistanceY", 2, 2, 2, 1, 14.0))
sketch11.addConstraint(Sketcher.Constraint("DistanceX", 0, 3, -1, 1, 25.0))
sketch11.addConstraint(Sketcher.Constraint("DistanceY", 0, 3, -1, 1, 13.0))
sketch11.addConstraint(Sketcher.Constraint("DistanceX", 5, 3, -1, 1, 10.0))
sketch11.addConstraint(Sketcher.Constraint("DistanceY", 5, 3, -1, 1, 63.0))
pocket5 = body.newObject("PartDesign::Pocket", "Pocket004")
pocket5.Profile = sketch11
pocket5.Type = "ThroughAll"

# Sketch on YZ plane
sketch12 = body.newObject("Sketcher::SketchObject", "Sketch011")
sketch12.AttachmentSupport = (doc.getObject("YZ_Plane"), [""])
sketch12.MapMode = "FlatFace"
sketch12.AttachmentOffset = App.Placement(V(0, 0, 150), App.Rotation())
sketch12.addGeometry(Part.LineSegment(V(-27, -30, 0), V(-27, 30, 0)), False)
sketch12.addGeometry(Part.ArcOfCircle(Part.Circle(V(-32, 30, 0), V(0, 0, 1), 5), math.radians(0), math.radians(90)), False)
sketch12.addGeometry(Part.LineSegment(V(-32, 35, 0), V(-77, 35, 0)), False)
sketch12.addGeometry(Part.LineSegment(V(-77, 35, 0), V(-77, -35, 0)), False)
sketch12.addGeometry(Part.LineSegment(V(-77, -35, 0), V(-32, -35, 0)), False)
sketch12.addGeometry(Part.ArcOfCircle(Part.Circle(V(-32, -30, 0), V(0, 0, 1), 5), math.radians(-90), math.radians(0)), False)
sketch12.addConstraint(Sketcher.Constraint("Tangent", 0, 2, 1, 1))
sketch12.addConstraint(Sketcher.Constraint("Tangent", 1, 2, 2, 1))
sketch12.addConstraint(Sketcher.Constraint("Coincident", 2, 2, 3, 1))
sketch12.addConstraint(Sketcher.Constraint("Coincident", 3, 2, 4, 1))
sketch12.addConstraint(Sketcher.Constraint("Tangent", 4, 2, 5, 1))
sketch12.addConstraint(Sketcher.Constraint("Tangent", 5, 2, 0, 1))
sketch12.addConstraint(Sketcher.Constraint("Vertical", 0))
sketch12.addConstraint(Sketcher.Constraint("Horizontal", 2))
sketch12.addConstraint(Sketcher.Constraint("Vertical", 3))
sketch12.addConstraint(Sketcher.Constraint("Horizontal", 4))
sketch12.addConstraint(Sketcher.Constraint("Equal", 1, 5))
sketch12.addConstraint(Sketcher.Constraint("Radius", 1, 5.0))
sketch12.addConstraint(Sketcher.Constraint("DistanceX", 2, 2, 2, 1, 45.0))
sketch12.addConstraint(Sketcher.Constraint("DistanceY", 0, 1, 0, 2, 60.0))
sketch12.addConstraint(Sketcher.Constraint("DistanceX", 1, 3, -1, 1, 32.0))
sketch12.addConstraint(Sketcher.Constraint("DistanceY", -1, 1, 1, 3, 30.0))
pocket6 = body.newObject("PartDesign::Pocket", "Pocket005")
pocket6.Profile = sketch12
pocket6.Type = "UpToFirst"
doc.recompute()

fillet = body.newObject("PartDesign::Fillet", "Fillet")
fillet.Base = (pocket6, edges_at(pocket6, [(148.5, -77, 35), (148.5, -77, -35)]))
fillet.Radius = 5

doc.recompute()
